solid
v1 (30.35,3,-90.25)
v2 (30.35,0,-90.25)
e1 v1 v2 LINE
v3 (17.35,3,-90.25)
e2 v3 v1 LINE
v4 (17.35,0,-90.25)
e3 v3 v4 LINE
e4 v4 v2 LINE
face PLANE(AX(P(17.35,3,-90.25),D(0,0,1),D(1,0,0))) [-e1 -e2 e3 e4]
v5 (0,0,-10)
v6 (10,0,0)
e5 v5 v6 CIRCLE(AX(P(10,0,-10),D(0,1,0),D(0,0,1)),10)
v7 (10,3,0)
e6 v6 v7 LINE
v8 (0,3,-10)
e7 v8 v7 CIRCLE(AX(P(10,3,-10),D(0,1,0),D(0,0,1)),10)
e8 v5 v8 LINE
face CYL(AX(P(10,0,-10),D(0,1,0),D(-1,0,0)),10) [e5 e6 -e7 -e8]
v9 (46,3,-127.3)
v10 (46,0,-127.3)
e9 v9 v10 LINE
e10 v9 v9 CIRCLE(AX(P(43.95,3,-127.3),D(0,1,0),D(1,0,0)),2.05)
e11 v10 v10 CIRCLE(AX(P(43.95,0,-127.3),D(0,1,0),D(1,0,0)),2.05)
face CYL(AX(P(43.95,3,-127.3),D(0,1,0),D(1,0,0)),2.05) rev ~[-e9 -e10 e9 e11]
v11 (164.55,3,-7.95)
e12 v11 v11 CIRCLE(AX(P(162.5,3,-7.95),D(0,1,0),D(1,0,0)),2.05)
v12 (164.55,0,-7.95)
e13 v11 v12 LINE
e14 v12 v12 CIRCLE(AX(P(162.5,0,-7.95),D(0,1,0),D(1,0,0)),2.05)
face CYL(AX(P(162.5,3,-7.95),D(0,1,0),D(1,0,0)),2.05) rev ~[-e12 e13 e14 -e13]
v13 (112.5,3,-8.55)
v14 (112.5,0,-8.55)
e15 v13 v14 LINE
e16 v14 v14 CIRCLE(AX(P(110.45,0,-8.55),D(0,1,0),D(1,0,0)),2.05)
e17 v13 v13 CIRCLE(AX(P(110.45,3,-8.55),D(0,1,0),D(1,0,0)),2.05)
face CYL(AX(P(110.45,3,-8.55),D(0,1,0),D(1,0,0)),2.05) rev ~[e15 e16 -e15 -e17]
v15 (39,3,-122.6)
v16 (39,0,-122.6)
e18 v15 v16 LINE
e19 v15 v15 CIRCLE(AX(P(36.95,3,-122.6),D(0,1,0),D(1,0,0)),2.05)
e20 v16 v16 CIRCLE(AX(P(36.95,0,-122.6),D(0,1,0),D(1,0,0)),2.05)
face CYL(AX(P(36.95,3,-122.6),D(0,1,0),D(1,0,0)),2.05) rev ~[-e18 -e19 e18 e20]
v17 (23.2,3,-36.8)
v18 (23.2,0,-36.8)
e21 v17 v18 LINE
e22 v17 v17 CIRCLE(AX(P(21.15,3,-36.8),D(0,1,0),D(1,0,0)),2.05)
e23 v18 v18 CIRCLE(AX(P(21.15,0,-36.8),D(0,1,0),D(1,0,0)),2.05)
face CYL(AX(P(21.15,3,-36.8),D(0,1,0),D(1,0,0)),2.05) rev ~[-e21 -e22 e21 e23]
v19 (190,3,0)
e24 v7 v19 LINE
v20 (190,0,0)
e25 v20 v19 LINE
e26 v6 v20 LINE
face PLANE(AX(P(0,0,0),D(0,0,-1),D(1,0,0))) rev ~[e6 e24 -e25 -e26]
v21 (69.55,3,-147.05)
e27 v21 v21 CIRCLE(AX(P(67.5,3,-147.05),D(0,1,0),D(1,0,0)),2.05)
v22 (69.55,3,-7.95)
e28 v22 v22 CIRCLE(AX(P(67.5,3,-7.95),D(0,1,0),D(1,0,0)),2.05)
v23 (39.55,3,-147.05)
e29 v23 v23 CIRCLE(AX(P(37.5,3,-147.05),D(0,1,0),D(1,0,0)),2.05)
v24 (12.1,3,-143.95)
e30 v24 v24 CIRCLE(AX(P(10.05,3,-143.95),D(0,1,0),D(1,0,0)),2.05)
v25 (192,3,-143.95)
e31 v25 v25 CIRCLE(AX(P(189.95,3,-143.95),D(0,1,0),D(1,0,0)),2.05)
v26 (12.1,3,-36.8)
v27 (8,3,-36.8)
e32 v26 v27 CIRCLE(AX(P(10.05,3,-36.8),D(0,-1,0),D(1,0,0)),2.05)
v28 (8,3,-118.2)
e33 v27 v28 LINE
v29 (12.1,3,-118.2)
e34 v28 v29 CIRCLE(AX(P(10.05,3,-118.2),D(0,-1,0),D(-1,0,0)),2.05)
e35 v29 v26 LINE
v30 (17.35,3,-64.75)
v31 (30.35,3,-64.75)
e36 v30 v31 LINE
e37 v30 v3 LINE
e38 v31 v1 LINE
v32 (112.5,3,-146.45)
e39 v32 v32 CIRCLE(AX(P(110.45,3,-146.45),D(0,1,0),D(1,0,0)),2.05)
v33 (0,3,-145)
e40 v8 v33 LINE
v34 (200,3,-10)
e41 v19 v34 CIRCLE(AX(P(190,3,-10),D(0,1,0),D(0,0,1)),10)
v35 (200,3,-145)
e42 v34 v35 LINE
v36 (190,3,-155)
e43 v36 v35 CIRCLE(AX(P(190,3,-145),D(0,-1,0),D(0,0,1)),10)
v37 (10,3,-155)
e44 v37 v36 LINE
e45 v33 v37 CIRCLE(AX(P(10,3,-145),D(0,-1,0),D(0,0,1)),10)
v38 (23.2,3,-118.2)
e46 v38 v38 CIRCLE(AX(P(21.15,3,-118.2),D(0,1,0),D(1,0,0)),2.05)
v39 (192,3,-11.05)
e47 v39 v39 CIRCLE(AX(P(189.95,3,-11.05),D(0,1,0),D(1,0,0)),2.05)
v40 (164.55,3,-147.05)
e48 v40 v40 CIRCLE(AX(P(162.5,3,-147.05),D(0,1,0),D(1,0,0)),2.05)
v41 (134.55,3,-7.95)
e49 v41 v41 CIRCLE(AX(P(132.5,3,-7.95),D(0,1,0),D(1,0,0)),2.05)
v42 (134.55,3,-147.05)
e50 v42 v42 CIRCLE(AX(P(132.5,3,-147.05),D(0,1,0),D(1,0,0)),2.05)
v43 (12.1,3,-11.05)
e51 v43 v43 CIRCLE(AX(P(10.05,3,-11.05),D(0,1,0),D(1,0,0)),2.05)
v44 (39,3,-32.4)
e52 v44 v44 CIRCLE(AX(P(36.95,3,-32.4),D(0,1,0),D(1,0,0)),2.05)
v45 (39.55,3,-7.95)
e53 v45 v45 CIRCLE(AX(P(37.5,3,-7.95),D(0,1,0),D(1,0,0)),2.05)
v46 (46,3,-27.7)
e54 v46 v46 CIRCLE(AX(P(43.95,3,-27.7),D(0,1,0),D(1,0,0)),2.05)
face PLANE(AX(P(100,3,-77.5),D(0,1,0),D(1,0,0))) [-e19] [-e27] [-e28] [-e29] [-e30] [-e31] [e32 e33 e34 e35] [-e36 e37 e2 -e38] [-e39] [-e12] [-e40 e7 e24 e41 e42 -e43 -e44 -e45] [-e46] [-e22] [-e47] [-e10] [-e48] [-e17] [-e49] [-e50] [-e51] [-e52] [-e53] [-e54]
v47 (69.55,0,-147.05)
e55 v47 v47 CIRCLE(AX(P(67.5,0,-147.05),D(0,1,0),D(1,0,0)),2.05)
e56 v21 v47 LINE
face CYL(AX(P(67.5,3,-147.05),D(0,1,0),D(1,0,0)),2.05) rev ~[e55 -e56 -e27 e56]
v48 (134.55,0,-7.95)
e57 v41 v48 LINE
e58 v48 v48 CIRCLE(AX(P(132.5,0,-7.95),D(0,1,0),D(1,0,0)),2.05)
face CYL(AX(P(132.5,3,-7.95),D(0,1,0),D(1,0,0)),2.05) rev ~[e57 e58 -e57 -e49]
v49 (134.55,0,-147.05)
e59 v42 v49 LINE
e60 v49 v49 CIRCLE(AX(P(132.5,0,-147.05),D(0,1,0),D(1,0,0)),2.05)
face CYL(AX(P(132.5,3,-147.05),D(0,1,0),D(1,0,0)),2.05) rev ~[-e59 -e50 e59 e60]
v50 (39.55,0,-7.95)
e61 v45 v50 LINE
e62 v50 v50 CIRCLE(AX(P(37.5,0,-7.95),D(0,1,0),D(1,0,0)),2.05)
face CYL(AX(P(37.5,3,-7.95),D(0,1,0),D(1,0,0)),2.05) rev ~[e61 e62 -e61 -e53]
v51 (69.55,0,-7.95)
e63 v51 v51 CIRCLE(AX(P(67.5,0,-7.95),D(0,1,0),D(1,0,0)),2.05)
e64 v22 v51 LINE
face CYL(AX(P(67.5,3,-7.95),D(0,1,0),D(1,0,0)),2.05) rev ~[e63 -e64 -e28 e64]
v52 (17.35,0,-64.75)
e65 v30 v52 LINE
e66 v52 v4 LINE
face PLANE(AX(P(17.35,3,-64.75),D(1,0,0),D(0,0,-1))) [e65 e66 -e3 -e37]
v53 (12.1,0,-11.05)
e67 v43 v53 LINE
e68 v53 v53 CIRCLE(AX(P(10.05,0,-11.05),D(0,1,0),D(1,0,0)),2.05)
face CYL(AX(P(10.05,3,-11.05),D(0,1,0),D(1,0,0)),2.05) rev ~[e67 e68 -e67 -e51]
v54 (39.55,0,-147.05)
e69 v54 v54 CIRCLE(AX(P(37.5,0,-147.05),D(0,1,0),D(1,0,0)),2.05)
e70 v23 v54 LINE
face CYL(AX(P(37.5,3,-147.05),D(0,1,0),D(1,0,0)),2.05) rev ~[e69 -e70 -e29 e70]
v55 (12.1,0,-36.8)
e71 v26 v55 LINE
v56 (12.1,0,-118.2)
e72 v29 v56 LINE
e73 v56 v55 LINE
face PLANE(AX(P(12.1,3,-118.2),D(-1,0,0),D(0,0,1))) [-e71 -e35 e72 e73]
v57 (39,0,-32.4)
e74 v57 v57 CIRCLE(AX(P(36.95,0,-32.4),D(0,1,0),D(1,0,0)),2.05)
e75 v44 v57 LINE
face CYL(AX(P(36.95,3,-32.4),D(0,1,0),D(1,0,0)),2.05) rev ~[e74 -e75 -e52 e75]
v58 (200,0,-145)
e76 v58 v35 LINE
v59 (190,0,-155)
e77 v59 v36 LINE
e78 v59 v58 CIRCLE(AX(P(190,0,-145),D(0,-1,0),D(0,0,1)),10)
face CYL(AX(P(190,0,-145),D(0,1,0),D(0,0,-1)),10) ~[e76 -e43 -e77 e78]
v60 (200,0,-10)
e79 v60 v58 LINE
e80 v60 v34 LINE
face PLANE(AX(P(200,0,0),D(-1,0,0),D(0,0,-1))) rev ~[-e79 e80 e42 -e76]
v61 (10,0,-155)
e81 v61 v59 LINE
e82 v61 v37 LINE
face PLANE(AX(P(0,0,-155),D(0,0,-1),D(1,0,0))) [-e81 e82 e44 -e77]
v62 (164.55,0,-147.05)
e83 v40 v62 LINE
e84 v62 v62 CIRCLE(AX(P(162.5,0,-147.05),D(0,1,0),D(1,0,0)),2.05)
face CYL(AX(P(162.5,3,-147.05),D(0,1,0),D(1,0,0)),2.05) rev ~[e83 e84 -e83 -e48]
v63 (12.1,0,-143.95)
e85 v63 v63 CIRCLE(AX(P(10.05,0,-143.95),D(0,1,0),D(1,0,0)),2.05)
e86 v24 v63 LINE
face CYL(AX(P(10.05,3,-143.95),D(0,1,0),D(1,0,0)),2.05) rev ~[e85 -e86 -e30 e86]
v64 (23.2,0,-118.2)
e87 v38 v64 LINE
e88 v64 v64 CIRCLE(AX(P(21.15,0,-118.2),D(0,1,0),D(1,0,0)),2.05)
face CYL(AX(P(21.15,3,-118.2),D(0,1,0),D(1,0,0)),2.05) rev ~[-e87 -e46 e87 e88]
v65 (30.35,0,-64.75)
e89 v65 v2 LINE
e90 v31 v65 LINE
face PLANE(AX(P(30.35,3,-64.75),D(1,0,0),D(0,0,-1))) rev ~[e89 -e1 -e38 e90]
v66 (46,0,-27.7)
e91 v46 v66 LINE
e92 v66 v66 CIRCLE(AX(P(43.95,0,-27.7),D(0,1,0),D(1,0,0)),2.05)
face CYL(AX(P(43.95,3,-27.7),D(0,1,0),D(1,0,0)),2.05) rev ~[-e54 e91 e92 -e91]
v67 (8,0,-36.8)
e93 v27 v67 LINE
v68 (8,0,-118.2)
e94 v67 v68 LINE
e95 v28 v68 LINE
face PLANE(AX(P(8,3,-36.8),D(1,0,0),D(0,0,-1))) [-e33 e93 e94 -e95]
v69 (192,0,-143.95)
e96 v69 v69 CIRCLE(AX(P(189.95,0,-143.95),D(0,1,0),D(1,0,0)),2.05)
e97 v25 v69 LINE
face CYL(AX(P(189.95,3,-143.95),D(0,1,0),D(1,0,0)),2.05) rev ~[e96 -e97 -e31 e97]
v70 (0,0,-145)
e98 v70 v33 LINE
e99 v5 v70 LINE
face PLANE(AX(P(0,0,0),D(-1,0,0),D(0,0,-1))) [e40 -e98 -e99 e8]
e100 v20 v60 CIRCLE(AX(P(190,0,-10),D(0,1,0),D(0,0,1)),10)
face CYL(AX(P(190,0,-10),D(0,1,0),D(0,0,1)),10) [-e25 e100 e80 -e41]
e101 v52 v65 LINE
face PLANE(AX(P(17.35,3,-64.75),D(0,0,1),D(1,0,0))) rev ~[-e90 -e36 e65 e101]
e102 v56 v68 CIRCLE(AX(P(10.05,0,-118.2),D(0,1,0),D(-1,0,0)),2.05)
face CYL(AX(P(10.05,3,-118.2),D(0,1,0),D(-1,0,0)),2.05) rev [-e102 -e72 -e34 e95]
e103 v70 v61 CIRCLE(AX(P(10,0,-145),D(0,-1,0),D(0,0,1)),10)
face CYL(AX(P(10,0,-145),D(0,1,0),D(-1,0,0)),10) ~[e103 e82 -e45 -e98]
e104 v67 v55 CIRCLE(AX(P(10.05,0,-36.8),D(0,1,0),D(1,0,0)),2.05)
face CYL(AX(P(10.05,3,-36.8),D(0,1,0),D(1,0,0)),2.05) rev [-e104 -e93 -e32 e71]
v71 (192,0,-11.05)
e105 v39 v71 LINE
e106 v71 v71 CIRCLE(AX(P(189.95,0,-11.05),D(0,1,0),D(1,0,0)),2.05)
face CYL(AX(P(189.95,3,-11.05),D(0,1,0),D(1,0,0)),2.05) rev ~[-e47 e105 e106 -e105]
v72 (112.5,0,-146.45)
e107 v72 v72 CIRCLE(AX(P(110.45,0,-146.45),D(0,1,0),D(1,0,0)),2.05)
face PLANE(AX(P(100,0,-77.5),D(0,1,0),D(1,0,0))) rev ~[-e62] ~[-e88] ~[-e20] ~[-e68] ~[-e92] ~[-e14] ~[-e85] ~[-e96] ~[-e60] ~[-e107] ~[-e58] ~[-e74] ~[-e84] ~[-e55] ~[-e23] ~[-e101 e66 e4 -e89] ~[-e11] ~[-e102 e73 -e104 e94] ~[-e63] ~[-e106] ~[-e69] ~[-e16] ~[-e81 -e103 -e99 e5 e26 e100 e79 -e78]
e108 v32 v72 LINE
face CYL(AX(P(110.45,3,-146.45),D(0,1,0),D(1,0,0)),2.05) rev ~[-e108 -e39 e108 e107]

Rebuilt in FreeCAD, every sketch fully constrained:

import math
import FreeCAD as App
import Part
import Sketcher
from FreeCAD import Vector
Q = App.Units.Quantity


def edges_at(feature, points):
    """Names of the edges that pass closest to the given points."""
    edges = feature.Shape.Edges
    near = lambda p: min(range(len(edges)), key=lambda i: edges[i].distToShape(Part.Vertex(*p))[0])
    return sorted({f"Edge{near(p) + 1}" for p in points})

doc = App.newDocument("Part")
body = doc.addObject("PartDesign::Body", "Body")

sketch1 = doc.addObject("Sketcher::SketchObject", "Sketch")
body.addObject(sketch1)
sketch1.AttachmentSupport = (doc.XZ_Plane, [""])
sketch1.MapMode = "FlatFace"
sketch1.addGeometry([
    Part.LineSegment(Vector(0, -155, 0), Vector(0, 0, 0)),
    Part.LineSegment(Vector(0, 0, 0), Vector(200, 0, 0)),
    Part.LineSegment(Vector(200, 0, 0), Vector(200, -155, 0)),
    Part.LineSegment(Vector(200, -155, 0), Vector(0, -155, 0)),
], False)
sketch1.addConstraint([
    Sketcher.Constraint("Coincident", 0, 2, 1, 1),
    Sketcher.Constraint("Coincident", 1, 2, 2, 1),
    Sketcher.Constraint("Coincident", 2, 2, 3, 1),
    Sketcher.Constraint("Coincident", 3, 2, 0, 1),
    Sketcher.Constraint("Vertical", 0),
    Sketcher.Constraint("Horizontal", 1),
    Sketcher.Constraint("Vertical", 2),
    Sketcher.Constraint("Horizontal", 3),
    Sketcher.Constraint("Coincident", 0, 2, -1, 1),
    Sketcher.Constraint("DistanceX", 1, 1, 1, 2, Q("200 mm")),
    Sketcher.Constraint("DistanceY", 0, 1, 0, 2, Q("155 mm")),
])
pad1 = doc.addObject("PartDesign::Pad", "Pad")
body.addObject(pad1)
pad1.Profile = sketch1
pad1.Length = 3
pad1.Reversed = True

sketch2 = doc.addObject("Sketcher::SketchObject", "Sketch001")
body.addObject(sketch2)
sketch2.AttachmentSupport = (doc.XZ_Plane, [""])
sketch2.MapMode = "FlatFace"
sketch2.AttachmentOffset = App.Placement(Vector(0, 0, -3), App.Rotation())
sketch2.addGeometry([
    Part.Circle(Vector(37.5, -8, 0), Vector(0, 0, 1), 2),
    Part.Circle(Vector(67.5, -8, 0), Vector(0, 0, 1), 2),
    Part.Circle(Vector(132.5, -8, 0), Vector(0, 0, 1), 2),
    Part.Circle(Vector(162.5, -8, 0), Vector(0, 0, 1), 2),
    Part.Circle(Vector(162.5, -147.1, 0), Vector(0, 0, 1), 2),
    Part.Circle(Vector(132.5, -147.1, 0), Vector(0, 0, 1), 2),
    Part.Circle(Vector(67.5, -147.1, 0), Vector(0, 0, 1), 2),
    Part.Circle(Vector(37.5, -147.1, 0), Vector(0, 0, 1), 2),
], False)
sketch2.addConstraint([
    Sketcher.Constraint("Equal", 0, 1),
    Sketcher.Constraint("Equal", 1, 2),
    Sketcher.Constraint("Equal", 2, 3),
    Sketcher.Constraint("Equal", 3, 4),
    Sketcher.Constraint("Equal", 4, 5),
    Sketcher.Constraint("Equal", 5, 6),
    Sketcher.Constraint("Equal", 6, 7),
    Sketcher.Constraint("Horizontal", 0, 3, 1, 3),
    Sketcher.Constraint("Horizontal", 1, 3, 2, 3),
    Sketcher.Constraint("Horizontal", 2, 3, 3, 3),
    Sketcher.Constraint("Horizontal", 4, 3, 5, 3),
    Sketcher.Constraint("Horizontal", 5, 3, 6, 3),
    Sketcher.Constraint("Horizontal", 6, 3, 7, 3),
    Sketcher.Constraint("Vertical", 3, 3, 4, 3),
    Sketcher.Constraint("Vertical", 2, 3, 5, 3),
    Sketcher.Constraint("Vertical", 1, 3, 6, 3),
    Sketcher.Constraint("Vertical", 0, 3, 7, 3),
    Sketcher.Constraint("Diameter", 0, Q("4.1 mm")),
    Sketcher.Constraint("DistanceX", 0, 3, 1, 3, Q("30 mm")),
    Sketcher.Constraint("DistanceX", 1, 3, 2, 3, Q("65 mm")),
    Sketcher.Constraint("DistanceX", 2, 3, 3, 3, Q("30 mm")),
    Sketcher.Constraint("DistanceX", -1, 1, 0, 3, Q("37.5 mm")),
    Sketcher.Constraint("DistanceY", 4, 3, 3, 3, Q("139.1 mm")),
    Sketcher.Constraint("DistanceY", 0, 3, -1, 1, Q("7.95 mm")),
])
pocket1 = doc.addObject("PartDesign::Pocket", "Pocket")
body.addObject(pocket1)
pocket1.Profile = sketch2
pocket1.Type = "ThroughAll"
pocket1.Reversed = True
doc.recompute()

fillet = doc.addObject("PartDesign::Fillet", "Fillet")
body.addObject(fillet)
fillet.Base = (pocket1, edges_at(pocket1, [
    (0, 1.5, -155),
    (200, 1.5, -155),
    (200, 1.5, 0),
    (0, 1.5, 0),
]))
fillet.Radius = 10

sketch3 = doc.addObject("Sketcher::SketchObject", "Sketch002")
body.addObject(sketch3)
sketch3.AttachmentSupport = (doc.XZ_Plane, [""])
sketch3.MapMode = "FlatFace"
sketch3.AttachmentOffset = App.Placement(Vector(0, 0, -3), App.Rotation())
sketch3.addGeometry([
    Part.Circle(Vector(10.1, -143.9, 0), Vector(0, 0, 1), 2),
    Part.Circle(Vector(21.1, -118.2, 0), Vector(0, 0, 1), 2),
    Part.Circle(Vector(37, -122.6, 0), Vector(0, 0, 1), 2),
    Part.Circle(Vector(44, -127.3, 0), Vector(0, 0, 1), 2),
    Part.Circle(Vector(44, -27.7, 0), Vector(0, 0, 1), 2),
    Part.Circle(Vector(37, -32.4, 0), Vector(0, 0, 1), 2),
    Part.Circle(Vector(10.1, -11.1, 0), Vector(0, 0, 1), 2),
    Part.Circle(Vector(21.1, -36.8, 0), Vector(0, 0, 1), 2),
    Part.Circle(Vector(189.9, -143.9, 0), Vector(0, 0, 1), 2),
    Part.Circle(Vector(110.5, -146.4, 0), Vector(0, 0, 1), 2),
    Part.Circle(Vector(189.9, -11.1, 0), Vector(0, 0, 1), 2),
    Part.Circle(Vector(110.5, -8.6, 0), Vector(0, 0, 1), 2),
    Part.LineSegment(Vector(12.1, -36.8, 0), Vector(12.1, -118.2, 0)),
    Part.ArcOfCircle(Part.Circle(Vector(10.1, -118.2, 0), Vector(0, 0, 1), 2), math.radians(180), math.radians(360)),
    Part.LineSegment(Vector(8, -118.2, 0), Vector(8, -36.8, 0)),
    Part.ArcOfCircle(Part.Circle(Vector(10.1, -36.8, 0), Vector(0, 0, 1), 2), math.radians(0), math.radians(180)),
    Part.LineSegment(Vector(17.4, -90.2, 0), Vector(17.4, -64.8, 0)),
    Part.LineSegment(Vector(17.4, -64.8, 0), Vector(30.4, -64.8, 0)),
    Part.LineSegment(Vector(30.4, -64.8, 0), Vector(30.4, -90.2, 0)),
    Part.LineSegment(Vector(30.4, -90.2, 0), Vector(17.4, -90.2, 0)),
], False)
sketch3.addConstraint([
    Sketcher.Constraint("Tangent", 12, 2, 13, 2),
    Sketcher.Constraint("Tangent", 13, 1, 14, 1),
    Sketcher.Constraint("Tangent", 14, 2, 15, 2),
    Sketcher.Constraint("Tangent", 15, 1, 12, 1),
    Sketcher.Constraint("Coincident", 16, 2, 17, 1),
    Sketcher.Constraint("Coincident", 17, 2, 18, 1),
    Sketcher.Constraint("Coincident", 18, 2, 19, 1),
    Sketcher.Constraint("Coincident", 19, 2, 16, 1),
    Sketcher.Constraint("Vertical", 12),
    Sketcher.Constraint("Vertical", 14),
    Sketcher.Constraint("Vertical", 16),
    Sketcher.Constraint("Horizontal", 17),
    Sketcher.Constraint("Vertical", 18),
    Sketcher.Constraint("Horizontal", 19),
    Sketcher.Constraint("Equal", 0, 1),
    Sketcher.Constraint("Equal", 1, 2),
    Sketcher.Constraint("Equal", 2, 3),
    Sketcher.Constraint("Equal", 3, 4),
    Sketcher.Constraint("Equal", 4, 5),
    Sketcher.Constraint("Equal", 5, 6),
    Sketcher.Constraint("Equal", 6, 7),
    Sketcher.Constraint("Equal", 7, 8),
    Sketcher.Constraint("Equal", 8, 9),
    Sketcher.Constraint("Equal", 9, 10),
    Sketcher.Constraint("Equal", 10, 11),
    Sketcher.Constraint("Equal", 11, 13),
    Sketcher.Constraint("Horizontal", 0, 3, 8, 3),
    Sketcher.Constraint("Horizontal", 6, 3, 10, 3),
    Sketcher.Constraint("Horizontal", 1, 3, 13, 3),
    Sketcher.Constraint("Horizontal", 7, 3, 15, 3),
    Sketcher.Constraint("Vertical", 3, 3, 4, 3),
    Sketcher.Constraint("Vertical", 2, 3, 5, 3),
    Sketcher.Constraint("Vertical", 0, 3, 6, 3),
    Sketcher.Constraint("Vertical", 1, 3, 7, 3),
    Sketcher.Constraint("Vertical", 8, 3, 10, 3),
    Sketcher.Constraint("Vertical", 9, 3, 11, 3),
    Sketcher.Constraint("Vertical", 6, 3, 13, 3),
    Sketcher.Constraint("Diameter", 0, Q("4.1 mm")),
    Sketcher.Constraint("DistanceX", 17, 1, 17, 2, Q("13 mm")),
    Sketcher.Constraint("DistanceY", 12, 2, 12, 1, Q("81.4 mm")),
    Sketcher.Constraint("DistanceY", 16, 1, 16, 2, Q("25.5 mm")),
    Sketcher.Constraint("DistanceX", -1, 1, 13, 1, Q("8 mm")),
    Sketcher.Constraint("DistanceX", 2, 3, 3, 3, Q("7 mm")),
    Sketcher.Constraint("DistanceX", 3, 3, 8, 3, Q("146 mm")),
    Sketcher.Constraint("DistanceY", 1, 3, -1, 1, Q("118.2 mm")),
    Sketcher.Constraint("DistanceY", 2, 3, -1, 1, Q("122.6 mm")),
    Sketcher.Constraint("DistanceY", 3, 3, -1, 1, Q("127.3 mm")),
    Sketcher.Constraint("DistanceY", 4, 3, -1, 1, Q("27.7 mm")),
    Sketcher.Constraint("DistanceY", 5, 3, -1, 1, Q("32.4 mm")),
    Sketcher.Constraint("DistanceX", 0, 3, 1, 3, Q("11.1 mm")),
    Sketcher.Constraint("DistanceX", 1, 3, 2, 3, Q("15.8 mm")),
    Sketcher.Constraint("DistanceX", 3, 3, 9, 3, Q("66.5 mm")),
    Sketcher.Constraint("DistanceY", 9, 3, 8, 3, Q("2.5 mm")),
    Sketcher.Constraint("DistanceY", 8, 3, 10, 3, Q("132.9 mm")),
    Sketcher.Constraint("DistanceY", 10, 3, 11, 3, Q("2.5 mm")),
    Sketcher.Constraint("DistanceX", 16, 2, 7, 3, Q("3.8 mm")),
    Sketcher.Constraint("DistanceY", 0, 3, -1, 1, Q("143.95 mm")),
    Sketcher.Constraint("DistanceY", 16, 2, -1, 1, Q("64.75 mm")),
])
pocket2 = doc.addObject("PartDesign::Pocket", "Pocket001")
body.addObject(pocket2)
pocket2.Profile = sketch3
pocket2.Type = "ThroughAll"
pocket2.Reversed = True

doc.recompute()
